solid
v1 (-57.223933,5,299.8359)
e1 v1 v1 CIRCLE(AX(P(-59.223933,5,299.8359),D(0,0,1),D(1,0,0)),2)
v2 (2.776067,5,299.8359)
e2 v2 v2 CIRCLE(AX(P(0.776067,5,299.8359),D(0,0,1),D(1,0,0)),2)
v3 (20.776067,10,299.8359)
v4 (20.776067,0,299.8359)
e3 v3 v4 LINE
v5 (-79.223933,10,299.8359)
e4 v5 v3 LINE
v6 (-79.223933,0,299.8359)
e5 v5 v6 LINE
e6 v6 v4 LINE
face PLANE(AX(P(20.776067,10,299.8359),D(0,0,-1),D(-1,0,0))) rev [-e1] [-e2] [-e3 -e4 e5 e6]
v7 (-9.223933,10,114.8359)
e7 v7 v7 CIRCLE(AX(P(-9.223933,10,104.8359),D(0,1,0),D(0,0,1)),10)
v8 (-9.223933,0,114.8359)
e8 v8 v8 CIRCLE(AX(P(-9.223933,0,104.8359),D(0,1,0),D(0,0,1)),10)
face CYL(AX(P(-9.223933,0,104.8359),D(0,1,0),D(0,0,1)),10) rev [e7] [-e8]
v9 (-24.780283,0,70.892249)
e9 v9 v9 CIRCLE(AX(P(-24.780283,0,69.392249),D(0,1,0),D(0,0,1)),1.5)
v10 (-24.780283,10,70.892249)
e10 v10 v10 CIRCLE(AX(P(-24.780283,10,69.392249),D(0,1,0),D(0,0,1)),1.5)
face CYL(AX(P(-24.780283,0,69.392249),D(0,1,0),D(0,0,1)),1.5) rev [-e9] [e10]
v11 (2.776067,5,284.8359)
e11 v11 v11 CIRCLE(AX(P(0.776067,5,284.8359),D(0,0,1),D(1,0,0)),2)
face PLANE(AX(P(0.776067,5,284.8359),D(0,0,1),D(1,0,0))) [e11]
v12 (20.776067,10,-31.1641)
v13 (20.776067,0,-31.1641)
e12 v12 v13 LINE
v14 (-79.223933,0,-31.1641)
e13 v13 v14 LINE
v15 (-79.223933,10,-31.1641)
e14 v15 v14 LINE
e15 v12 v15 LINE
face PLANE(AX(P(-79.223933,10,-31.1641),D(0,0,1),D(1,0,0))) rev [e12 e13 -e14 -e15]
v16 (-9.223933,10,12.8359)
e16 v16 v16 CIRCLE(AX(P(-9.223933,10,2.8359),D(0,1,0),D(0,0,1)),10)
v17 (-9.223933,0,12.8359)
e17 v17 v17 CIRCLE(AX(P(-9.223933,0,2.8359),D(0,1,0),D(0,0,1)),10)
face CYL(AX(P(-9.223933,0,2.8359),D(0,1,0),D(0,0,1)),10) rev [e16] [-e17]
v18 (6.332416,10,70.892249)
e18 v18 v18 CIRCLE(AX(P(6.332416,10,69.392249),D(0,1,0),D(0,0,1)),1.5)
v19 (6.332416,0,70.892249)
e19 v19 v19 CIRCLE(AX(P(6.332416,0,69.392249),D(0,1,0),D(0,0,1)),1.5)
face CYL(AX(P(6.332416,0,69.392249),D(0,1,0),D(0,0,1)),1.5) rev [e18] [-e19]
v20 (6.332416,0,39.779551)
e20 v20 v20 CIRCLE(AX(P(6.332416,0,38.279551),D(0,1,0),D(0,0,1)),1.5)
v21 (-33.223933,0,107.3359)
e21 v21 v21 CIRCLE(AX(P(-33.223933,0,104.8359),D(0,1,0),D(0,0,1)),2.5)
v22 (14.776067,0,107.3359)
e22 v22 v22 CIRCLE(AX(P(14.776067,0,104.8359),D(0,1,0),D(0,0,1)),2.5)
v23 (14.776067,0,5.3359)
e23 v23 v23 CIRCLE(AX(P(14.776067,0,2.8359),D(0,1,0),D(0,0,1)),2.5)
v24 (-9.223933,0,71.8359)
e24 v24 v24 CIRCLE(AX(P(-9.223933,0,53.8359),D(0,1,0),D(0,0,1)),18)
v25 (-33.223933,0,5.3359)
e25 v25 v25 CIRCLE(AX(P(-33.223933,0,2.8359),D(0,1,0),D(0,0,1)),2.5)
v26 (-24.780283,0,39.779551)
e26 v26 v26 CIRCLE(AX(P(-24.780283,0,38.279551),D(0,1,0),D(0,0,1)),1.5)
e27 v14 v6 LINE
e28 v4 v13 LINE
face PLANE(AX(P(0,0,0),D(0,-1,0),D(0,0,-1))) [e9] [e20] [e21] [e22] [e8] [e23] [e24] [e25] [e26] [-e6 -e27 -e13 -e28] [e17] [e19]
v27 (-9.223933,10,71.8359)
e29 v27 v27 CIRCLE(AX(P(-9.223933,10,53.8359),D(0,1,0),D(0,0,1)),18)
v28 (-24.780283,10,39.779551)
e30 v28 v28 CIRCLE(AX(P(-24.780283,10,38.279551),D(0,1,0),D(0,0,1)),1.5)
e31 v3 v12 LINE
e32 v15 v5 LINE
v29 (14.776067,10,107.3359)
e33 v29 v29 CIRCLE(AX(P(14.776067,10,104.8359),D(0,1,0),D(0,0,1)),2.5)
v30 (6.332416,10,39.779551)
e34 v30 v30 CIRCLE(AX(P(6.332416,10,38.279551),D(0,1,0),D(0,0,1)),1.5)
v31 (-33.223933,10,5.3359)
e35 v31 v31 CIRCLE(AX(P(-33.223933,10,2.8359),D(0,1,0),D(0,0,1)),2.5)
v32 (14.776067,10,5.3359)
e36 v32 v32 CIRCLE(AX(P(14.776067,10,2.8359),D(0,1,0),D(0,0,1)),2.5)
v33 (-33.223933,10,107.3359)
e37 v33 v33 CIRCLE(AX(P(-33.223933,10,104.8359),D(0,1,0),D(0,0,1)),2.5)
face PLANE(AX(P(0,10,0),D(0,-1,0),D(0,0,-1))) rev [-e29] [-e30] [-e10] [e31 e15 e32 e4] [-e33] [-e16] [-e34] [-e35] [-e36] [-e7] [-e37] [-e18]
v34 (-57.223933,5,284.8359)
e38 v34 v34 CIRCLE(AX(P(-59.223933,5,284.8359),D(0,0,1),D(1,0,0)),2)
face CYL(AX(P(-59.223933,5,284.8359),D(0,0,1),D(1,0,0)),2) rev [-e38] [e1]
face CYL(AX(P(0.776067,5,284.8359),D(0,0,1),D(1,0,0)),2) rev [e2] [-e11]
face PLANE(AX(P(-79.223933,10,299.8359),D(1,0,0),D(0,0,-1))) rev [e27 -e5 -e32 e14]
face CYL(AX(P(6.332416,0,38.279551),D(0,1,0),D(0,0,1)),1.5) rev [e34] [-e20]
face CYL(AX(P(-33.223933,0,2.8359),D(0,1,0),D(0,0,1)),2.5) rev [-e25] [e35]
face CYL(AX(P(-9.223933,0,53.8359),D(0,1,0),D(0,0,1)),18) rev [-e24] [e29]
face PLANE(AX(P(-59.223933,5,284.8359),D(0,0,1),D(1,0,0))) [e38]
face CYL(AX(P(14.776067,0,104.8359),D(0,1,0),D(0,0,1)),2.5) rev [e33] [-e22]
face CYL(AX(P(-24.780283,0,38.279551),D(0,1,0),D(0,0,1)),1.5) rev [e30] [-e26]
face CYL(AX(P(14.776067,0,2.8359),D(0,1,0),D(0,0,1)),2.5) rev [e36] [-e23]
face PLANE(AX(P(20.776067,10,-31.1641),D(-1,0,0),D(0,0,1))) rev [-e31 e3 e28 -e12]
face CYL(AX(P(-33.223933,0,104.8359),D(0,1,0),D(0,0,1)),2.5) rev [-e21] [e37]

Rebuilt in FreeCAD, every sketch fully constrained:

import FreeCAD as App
import Part
import Sketcher

V = App.Vector
Q = App.Units.Quantity

doc = App.newDocument("Part")
body = doc.addObject("PartDesign::Body", "Body")

sketch1 = body.newObject("Sketcher::SketchObject", "Sketch")
sketch1.AttachmentSupport = (doc.getObject("XZ_Plane"), [""])
sketch1.MapMode = "FlatFace"
sketch1.addGeometry(Part.LineSegment(V(-79, -31, 0), V(-79, 300, 0)), False)
sketch1.addGeometry(Part.LineSegment(V(-79, 300, 0), V(21, 300, 0)), False)
sketch1.addGeometry(Part.LineSegment(V(21, 300, 0), V(21, -31, 0)), False)
sketch1.addGeometry(Part.LineSegment(V(21, -31, 0), V(-79, -31, 0)), False)
sketch1.addConstraint(Sketcher.Constraint("Coincident", 0, 2, 1, 1))
sketch1.addConstraint(Sketcher.Constraint("Coincident", 1, 2, 2, 1))
sketch1.addConstraint(Sketcher.Constraint("Coincident", 2, 2, 3, 1))
sketch1.addConstraint(Sketcher.Constraint("Coincident", 3, 2, 0, 1))
sketch1.addConstraint(Sketcher.Constraint("Vertical", 0))
sketch1.addConstraint(Sketcher.Constraint("Horizontal", 1))
sketch1.addConstraint(Sketcher.Constraint("Vertical", 2))
sketch1.addConstraint(Sketcher.Constraint("Horizontal", 3))
sketch1.addConstraint(Sketcher.Constraint("DistanceX", 1, 1, 1, 2, Q("100 mm")))
sketch1.addConstraint(Sketcher.Constraint("DistanceY", 0, 1, 0, 2, Q("331 mm")))
sketch1.addConstraint(Sketcher.Constraint("DistanceY", -1, 1, 0, 2, Q("299.8359 mm")))
sketch1.addConstraint(Sketcher.Constraint("DistanceX", 0, 2, -1, 1, Q("79.223933 mm")))
pad1 = body.newObject("PartDesign::Pad", "Pad")
pad1.Profile = sketch1
pad1.Length = 10
pad1.Reversed = True

sketch2 = body.newObject("Sketcher::SketchObject", "Sketch001")
sketch2.AttachmentSupport = (doc.getObject("XZ_Plane"), [""])
sketch2.MapMode = "FlatFace"
sketch2.AttachmentOffset = App.Placement(V(0, 0, -10), App.Rotation())
sketch2.addGeometry(Part.Circle(V(-9.2, 2.8, 0), V(0, 0, 1), 10), False)
sketch2.addGeometry(Part.Circle(V(-33.2, 2.8, 0), V(0, 0, 1), 2.5), False)
sketch2.addGeometry(Part.Circle(V(14.8, 2.8, 0), V(0, 0, 1), 2.5), False)
sketch2.addGeometry(Part.Circle(V(-9.2, 104.8, 0), V(0, 0, 1), 10), False)
sketch2.addGeometry(Part.Circle(V(-33.2, 104.8, 0), V(0, 0, 1), 2.5), False)
sketch2.addGeometry(Part.Circle(V(14.8, 104.8, 0), V(0, 0, 1), 2.5), False)
sketch2.addGeometry(Part.Circle(V(-9.2, 53.8, 0), V(0, 0, 1), 18), False)
sketch2.addGeometry(Part.Circle(V(6.3, 38.3, 0), V(0, 0, 1), 1.5), False)
sketch2.addGeometry(Part.Circle(V(6.3, 69.4, 0), V(0, 0, 1), 1.5), False)
sketch2.addGeometry(Part.Circle(V(-24.8, 69.4, 0), V(0, 0, 1), 1.5), False)
sketch2.addGeometry(Part.Circle(V(-24.8, 38.3, 0), V(0, 0, 1), 1.5), False)
sketch2.addConstraint(Sketcher.Constraint("Equal", 1, 2))
sketch2.addConstraint(Sketcher.Constraint("Equal", 0, 3))
sketch2.addConstraint(Sketcher.Constraint("Equal", 2, 4))
sketch2.addConstraint(Sketcher.Constraint("Equal", 4, 5))
sketch2.addConstraint(Sketcher.Constraint("Equal", 7, 8))
sketch2.addConstraint(Sketcher.Constraint("Equal", 8, 9))
sketch2.addConstraint(Sketcher.Constraint("Equal", 9, 10))
sketch2.addConstraint(Sketcher.Constraint("Horizontal", 0, 3, 1, 3))
sketch2.addConstraint(Sketcher.Constraint("Horizontal", 1, 3, 2, 3))
sketch2.addConstraint(Sketcher.Constraint("Horizontal", 3, 3, 4, 3))
sketch2.addConstraint(Sketcher.Constraint("Horizontal", 4, 3, 5, 3))
sketch2.addConstraint(Sketcher.Constraint("Horizontal", 8, 3, 9, 3))
sketch2.addConstraint(Sketcher.Constraint("Horizontal", 7, 3, 10, 3))
sketch2.addConstraint(Sketcher.Constraint("Vertical", 0, 3, 3, 3))
sketch2.addConstraint(Sketcher.Constraint("Vertical", 1, 3, 4, 3))
sketch2.addConstraint(Sketcher.Constraint("Vertical", 2, 3, 5, 3))
sketch2.addConstraint(Sketcher.Constraint("Vertical", 3, 3, 6, 3))
sketch2.addConstraint(Sketcher.Constraint("Vertical", 7, 3, 8, 3))
sketch2.addConstraint(Sketcher.Constraint("Vertical", 9, 3, 10, 3))
sketch2.addConstraint(Sketcher.Constraint("Diameter", 0, Q("20 mm")))
sketch2.addConstraint(Sketcher.Constraint("Diameter", 1, Q("5 mm")))
sketch2.addConstraint(Sketcher.Constraint("Diameter", 6, Q("36 mm")))
sketch2.addConstraint(Sketcher.Constraint("Diameter", 7, Q("3 mm")))
sketch2.addConstraint(Sketcher.Constraint("DistanceX", 1, 3, 0, 3, Q("24 mm")))
sketch2.addConstraint(Sketcher.Constraint("DistanceX", 0, 3, 2, 3, Q("24 mm")))
sketch2.addConstraint(Sketcher.Constraint("DistanceY", 0, 3, 3, 3, Q("102 mm")))
sketch2.addConstraint(Sketcher.Constraint("DistanceY", 0, 3, 6, 3, Q("51 mm")))
sketch2.addConstraint(Sketcher.Constraint("DistanceY", -1, 1, 0, 3, Q("2.8359 mm")))
sketch2.addConstraint(Sketcher.Constraint("DistanceY", 7, 3, 8, 3, Q("31.112698 mm")))
sketch2.addConstraint(Sketcher.Constraint("DistanceX", 9, 3, 8, 3, Q("31.112698 mm")))
sketch2.addConstraint(Sketcher.Constraint("DistanceY", -1, 1, 7, 3, Q("38.279551 mm")))
sketch2.addConstraint(Sketcher.Constraint("DistanceX", 6, 3, 7, 3, Q("15.556349 mm")))
sketch2.addConstraint(Sketcher.Constraint("DistanceX", 0, 3, -1, 1, Q("9.223933 mm")))
pocket1 = body.newObject("PartDesign::Pocket", "Pocket")
pocket1.Profile = sketch2
pocket1.Type = "ThroughAll"
pocket1.Reversed = True

sketch3 = body.newObject("Sketcher::SketchObject", "Sketch002")
sketch3.AttachmentSupport = (doc.getObject("XY_Plane"), [""])
sketch3.MapMode = "FlatFace"
sketch3.AttachmentOffset = App.Placement(V(0, 0, 299.8359), App.Rotation())
sketch3.addGeometry(Part.Circle(V(-59.2, 5, 0), V(0, 0, 1), 2), False)
sketch3.addGeometry(Part.Circle(V(0.8, 5, 0), V(0, 0, 1), 2), False)
sketch3.addConstraint(Sketcher.Constraint("Equal", 0, 1))
sketch3.addConstraint(Sketcher.Constraint("Horizontal", 0, 3, 1, 3))
sketch3.addConstraint(Sketcher.Constraint("Diameter", 0, Q("4 mm")))
sketch3.addConstraint(Sketcher.Constraint("DistanceY", -1, 1, 0, 3, Q("5 mm")))
sketch3.addConstraint(Sketcher.Constraint("DistanceX", 0, 3, 1, 3, Q("60 mm")))
sketch3.addConstraint(Sketcher.Constraint("DistanceX", 0, 3, -1, 1, Q("59.223933 mm")))
pocket2 = body.newObject("PartDesign::Pocket", "Pocket001")
pocket2.Profile = sketch3
pocket2.Length = 15

doc.recompute()
